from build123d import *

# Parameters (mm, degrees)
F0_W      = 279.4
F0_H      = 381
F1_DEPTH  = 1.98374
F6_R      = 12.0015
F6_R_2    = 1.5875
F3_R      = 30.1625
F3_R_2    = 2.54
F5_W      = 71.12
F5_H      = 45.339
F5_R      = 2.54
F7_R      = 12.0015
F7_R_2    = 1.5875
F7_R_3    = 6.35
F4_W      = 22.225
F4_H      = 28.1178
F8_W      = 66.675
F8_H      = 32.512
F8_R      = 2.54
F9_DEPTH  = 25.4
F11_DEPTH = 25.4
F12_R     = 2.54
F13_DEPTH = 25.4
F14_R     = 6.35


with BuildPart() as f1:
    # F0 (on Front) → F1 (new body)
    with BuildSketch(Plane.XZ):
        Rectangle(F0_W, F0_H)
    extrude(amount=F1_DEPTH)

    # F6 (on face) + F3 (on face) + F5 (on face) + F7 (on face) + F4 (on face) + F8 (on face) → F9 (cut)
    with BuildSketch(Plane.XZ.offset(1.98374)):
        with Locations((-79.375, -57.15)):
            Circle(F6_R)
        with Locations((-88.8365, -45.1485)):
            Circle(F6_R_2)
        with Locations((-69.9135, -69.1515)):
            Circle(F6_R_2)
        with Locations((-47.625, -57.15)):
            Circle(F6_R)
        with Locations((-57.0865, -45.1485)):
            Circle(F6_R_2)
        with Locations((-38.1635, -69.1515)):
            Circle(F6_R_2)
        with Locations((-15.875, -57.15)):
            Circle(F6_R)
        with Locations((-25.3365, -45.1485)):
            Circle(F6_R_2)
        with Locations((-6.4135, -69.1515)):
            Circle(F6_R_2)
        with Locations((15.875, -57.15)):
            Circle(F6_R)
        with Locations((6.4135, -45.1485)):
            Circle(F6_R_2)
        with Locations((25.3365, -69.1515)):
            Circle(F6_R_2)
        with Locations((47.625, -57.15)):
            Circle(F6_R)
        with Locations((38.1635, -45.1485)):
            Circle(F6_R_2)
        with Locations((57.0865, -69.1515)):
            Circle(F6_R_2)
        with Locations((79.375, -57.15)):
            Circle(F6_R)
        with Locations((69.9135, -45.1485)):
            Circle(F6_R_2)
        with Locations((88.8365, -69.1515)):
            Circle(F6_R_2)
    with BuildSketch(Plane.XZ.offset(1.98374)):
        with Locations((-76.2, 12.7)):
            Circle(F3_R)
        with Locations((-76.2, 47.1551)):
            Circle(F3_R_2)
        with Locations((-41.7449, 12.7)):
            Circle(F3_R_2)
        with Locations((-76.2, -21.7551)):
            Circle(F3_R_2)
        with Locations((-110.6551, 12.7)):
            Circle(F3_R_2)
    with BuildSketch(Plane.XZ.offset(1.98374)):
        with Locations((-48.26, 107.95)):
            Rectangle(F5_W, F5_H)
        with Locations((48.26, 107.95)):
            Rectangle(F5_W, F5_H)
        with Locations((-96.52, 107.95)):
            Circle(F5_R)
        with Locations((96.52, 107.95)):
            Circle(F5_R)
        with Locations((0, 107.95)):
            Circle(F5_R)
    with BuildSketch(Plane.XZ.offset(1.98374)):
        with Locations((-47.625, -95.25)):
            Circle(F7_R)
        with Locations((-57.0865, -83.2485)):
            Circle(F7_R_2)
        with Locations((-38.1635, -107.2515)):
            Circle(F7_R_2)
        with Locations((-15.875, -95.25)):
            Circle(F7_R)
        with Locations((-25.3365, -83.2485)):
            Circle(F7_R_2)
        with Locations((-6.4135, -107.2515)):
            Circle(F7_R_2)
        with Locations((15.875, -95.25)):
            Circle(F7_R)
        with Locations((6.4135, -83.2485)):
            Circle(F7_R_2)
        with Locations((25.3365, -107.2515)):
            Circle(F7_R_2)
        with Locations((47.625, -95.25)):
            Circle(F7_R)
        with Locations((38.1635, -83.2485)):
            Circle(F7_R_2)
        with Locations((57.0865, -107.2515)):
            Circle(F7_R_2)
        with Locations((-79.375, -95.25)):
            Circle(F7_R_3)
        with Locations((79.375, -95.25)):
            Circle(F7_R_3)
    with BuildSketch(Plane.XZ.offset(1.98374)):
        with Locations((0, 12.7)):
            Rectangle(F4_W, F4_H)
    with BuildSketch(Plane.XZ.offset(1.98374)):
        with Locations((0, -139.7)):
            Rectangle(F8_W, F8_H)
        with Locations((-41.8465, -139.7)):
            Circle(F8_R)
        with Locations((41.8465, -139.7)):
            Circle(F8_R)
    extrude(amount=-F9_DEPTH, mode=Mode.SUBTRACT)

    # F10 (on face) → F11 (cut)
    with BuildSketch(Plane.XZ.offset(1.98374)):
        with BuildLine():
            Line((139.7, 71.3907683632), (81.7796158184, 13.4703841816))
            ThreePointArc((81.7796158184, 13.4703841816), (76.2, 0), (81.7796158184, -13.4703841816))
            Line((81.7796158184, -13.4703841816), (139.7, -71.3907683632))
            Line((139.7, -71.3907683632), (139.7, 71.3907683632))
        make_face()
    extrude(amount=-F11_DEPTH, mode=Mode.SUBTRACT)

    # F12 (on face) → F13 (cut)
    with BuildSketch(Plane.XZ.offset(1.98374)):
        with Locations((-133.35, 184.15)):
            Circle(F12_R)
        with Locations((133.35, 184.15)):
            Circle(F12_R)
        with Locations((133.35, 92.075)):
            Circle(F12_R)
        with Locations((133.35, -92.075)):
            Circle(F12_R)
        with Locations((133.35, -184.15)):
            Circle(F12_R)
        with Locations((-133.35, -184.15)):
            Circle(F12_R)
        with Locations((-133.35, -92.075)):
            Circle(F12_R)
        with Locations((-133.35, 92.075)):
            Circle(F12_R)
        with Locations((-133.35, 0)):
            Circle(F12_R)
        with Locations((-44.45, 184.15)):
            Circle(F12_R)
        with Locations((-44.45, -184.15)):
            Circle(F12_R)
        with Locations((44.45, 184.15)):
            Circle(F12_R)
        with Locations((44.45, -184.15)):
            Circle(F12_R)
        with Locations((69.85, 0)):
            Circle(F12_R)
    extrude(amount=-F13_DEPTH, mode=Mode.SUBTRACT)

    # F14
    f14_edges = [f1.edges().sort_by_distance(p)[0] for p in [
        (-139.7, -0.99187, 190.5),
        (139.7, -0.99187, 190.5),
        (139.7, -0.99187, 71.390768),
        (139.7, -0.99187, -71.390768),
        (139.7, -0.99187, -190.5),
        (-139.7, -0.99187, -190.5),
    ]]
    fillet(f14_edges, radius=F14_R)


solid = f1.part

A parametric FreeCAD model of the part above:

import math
import FreeCAD as App
import Part
import Sketcher

V = App.Vector
Q = App.Units.Quantity


def edges_at(feature, points):
    """Names of the edges that pass closest to the given points."""
    edges = feature.Shape.Edges
    near = lambda p: min(range(len(edges)), key=lambda i: edges[i].distToShape(Part.Vertex(*p))[0])
    return sorted({f"Edge{near(p) + 1}" for p in points})

doc = App.newDocument("Part")
params = doc.addObject("Spreadsheet::Sheet", "Params")
for row, (alias, value) in enumerate([
    ("sketch1_width", "11 in"),
    ("sketch1_height", "15 in"),
    ("pad1_length", "0.0781 in"),
    ("sketch2_diameter", "0.2 in"),
    ("sketch2_diameter2", "0.5 in"),
    ("sketch2_diameter3", "0.945 in"),
    ("sketch2_diameter4", "0.125 in"),
    ("sketch2_diameter5", "2.375 in"),
    ("pocket1_length", "1 in"),
    ("sketch3_radius", "0.75 in"),
    ("pocket2_length", "1 in"),
    ("sketch4_diameter", "0.2 in"),
    ("pocket3_length", "1 in"),
    ("fillet_radius", "0.25 in"),
], start=1):
    params.set(f"A{row}", alias)
    params.set(f"B{row}", "=" + value)
    params.setAlias(f"B{row}", alias)

body = doc.addObject("PartDesign::Body", "Body")

sketch1 = doc.addObject("Sketcher::SketchObject", "Sketch")
body.addObject(sketch1)
sketch1.AttachmentSupport = (doc.XZ_Plane, [""])
sketch1.MapMode = "FlatFace"
sketch1.addGeometry([
    Part.LineSegment(V(-139.7, 190.5, 0), V(-139.7, -190.5, 0)),
    Part.LineSegment(V(-139.7, -190.5, 0), V(139.7, -190.5, 0)),
    Part.LineSegment(V(139.7, -190.5, 0), V(139.7, 190.5, 0)),
    Part.LineSegment(V(139.7, 190.5, 0), V(-139.7, 190.5, 0)),
], False)
sketch1.addConstraint([
    Sketcher.Constraint("Coincident", 0, 2, 1, 1),
    Sketcher.Constraint("Coincident", 1, 2, 2, 1),
    Sketcher.Constraint("Coincident", 2, 2, 3, 1),
    Sketcher.Constraint("Coincident", 3, 2, 0, 1),
    Sketcher.Constraint("Vertical", 0),
    Sketcher.Constraint("Horizontal", 1),
    Sketcher.Constraint("Vertical", 2),
    Sketcher.Constraint("Horizontal", 3),
    Sketcher.Constraint("Symmetric", 0, 2, 2, 2, -1, 1),
    Sketcher.Constraint("DistanceX", 1, 1, 1, 2, Q("11 in")),
    Sketcher.Constraint("DistanceY", 0, 2, 0, 1, Q("15 in")),
])
sketch1.setExpression("Constraints[9]", "Params.sketch1_width")
sketch1.setExpression("Constraints[10]", "Params.sketch1_height")
pad1 = doc.addObject("PartDesign::Pad", "Pad")
body.addObject(pad1)
pad1.Profile = sketch1
pad1.setExpression("Length", "Params.pad1_length")

sketch2 = doc.addObject("Sketcher::SketchObject", "Sketch001")
body.addObject(sketch2)
sketch2.AttachmentSupport = (doc.XZ_Plane, [""])
sketch2.MapMode = "FlatFace"
sketch2.AttachmentOffset = App.Placement(V(0, 0, 0.0781 * 25.4), App.Rotation())
sketch2.addGeometry([
    Part.Circle(V(-79.375, -57.15, 0), V(0, 0, 1), 12.0015),
    Part.Circle(V(-88.8365, -45.1485, 0), V(0, 0, 1), 1.5875),
    Part.Circle(V(-69.9135, -69.1515, 0), V(0, 0, 1), 1.5875),
    Part.Circle(V(-47.625, -57.15, 0), V(0, 0, 1), 12.0015),
    Part.Circle(V(-57.0865, -45.1485, 0), V(0, 0, 1), 1.5875),
    Part.Circle(V(-38.1635, -69.1515, 0), V(0, 0, 1), 1.5875),
    Part.Circle(V(-15.875, -57.15, 0), V(0, 0, 1), 12.0015),
    Part.Circle(V(-25.3365, -45.1485, 0), V(0, 0, 1), 1.5875),
    Part.Circle(V(-6.4135, -69.1515, 0), V(0, 0, 1), 1.5875),
    Part.Circle(V(15.875, -57.15, 0), V(0, 0, 1), 12.0015),
    Part.Circle(V(6.4135, -45.1485, 0), V(0, 0, 1), 1.5875),
    Part.Circle(V(25.3365, -69.1515, 0), V(0, 0, 1), 1.5875),
    Part.Circle(V(47.625, -57.15, 0), V(0, 0, 1), 12.0015),
    Part.Circle(V(38.1635, -45.1485, 0), V(0, 0, 1), 1.5875),
    Part.Circle(V(57.0865, -69.1515, 0), V(0, 0, 1), 1.5875),
    Part.Circle(V(79.375, -57.15, 0), V(0, 0, 1), 12.0015),
    Part.Circle(V(69.9135, -45.1485, 0), V(0, 0, 1), 1.5875),
    Part.Circle(V(88.8365, -69.1515, 0), V(0, 0, 1), 1.5875),
    Part.Circle(V(-76.2, 12.7, 0), V(0, 0, 1), 30.1625),
    Part.Circle(V(-76.2, 47.1551, 0), V(0, 0, 1), 2.54),
    Part.Circle(V(-41.7449, 12.7, 0), V(0, 0, 1), 2.54),
    Part.Circle(V(-76.2, -21.7551, 0), V(0, 0, 1), 2.54),
    Part.Circle(V(-110.6551, 12.7, 0), V(0, 0, 1), 2.54),
    Part.LineSegment(V(-83.82, 130.6195, 0), V(-83.82, 85.2805, 0)),
    Part.LineSegment(V(-83.82, 85.2805, 0), V(-12.7, 85.2805, 0)),
    Part.LineSegment(V(-12.7, 85.2805, 0), V(-12.7, 130.6195, 0)),
    Part.LineSegment(V(-12.7, 130.6195, 0), V(-83.82, 130.6195, 0)),
    Part.LineSegment(V(12.7, 130.6195, 0), V(12.7, 85.2805, 0)),
    Part.LineSegment(V(12.7, 85.2805, 0), V(83.82, 85.2805, 0)),
    Part.LineSegment(V(83.82, 85.2805, 0), V(83.82, 130.6195, 0)),
    Part.LineSegment(V(83.82, 130.6195, 0), V(12.7, 130.6195, 0)),
    Part.Circle(V(-96.52, 107.95, 0), V(0, 0, 1), 2.54),
    Part.Circle(V(96.52, 107.95, 0), V(0, 0, 1), 2.54),
    Part.Circle(V(0, 107.95, 0), V(0, 0, 1), 2.54),
    Part.Circle(V(-47.625, -95.25, 0), V(0, 0, 1), 12.0015),
    Part.Circle(V(-57.0865, -83.2485, 0), V(0, 0, 1), 1.5875),
    Part.Circle(V(-38.1635, -107.2515, 0), V(0, 0, 1), 1.5875),
    Part.Circle(V(-15.875, -95.25, 0), V(0, 0, 1), 12.0015),
    Part.Circle(V(-25.3365, -83.2485, 0), V(0, 0, 1), 1.5875),
    Part.Circle(V(-6.4135, -107.2515, 0), V(0, 0, 1), 1.5875),
    Part.Circle(V(15.875, -95.25, 0), V(0, 0, 1), 12.0015),
    Part.Circle(V(6.4135, -83.2485, 0), V(0, 0, 1), 1.5875),
    Part.Circle(V(25.3365, -107.2515, 0), V(0, 0, 1), 1.5875),
    Part.Circle(V(47.625, -95.25, 0), V(0, 0, 1), 12.0015),
    Part.Circle(V(38.1635, -83.2485, 0), V(0, 0, 1), 1.5875),
    Part.Circle(V(57.0865, -107.2515, 0), V(0, 0, 1), 1.5875),
    Part.Circle(V(-79.375, -95.25, 0), V(0, 0, 1), 6.35),
    Part.Circle(V(79.375, -95.25, 0), V(0, 0, 1), 6.35),
    Part.LineSegment(V(-11.1125, 26.7589, 0), V(-11.1125, -1.3589, 0)),
    Part.LineSegment(V(-11.1125, -1.3589, 0), V(11.1125, -1.3589, 0)),
    Part.LineSegment(V(11.1125, -1.3589, 0), V(11.1125, 26.7589, 0)),
    Part.LineSegment(V(11.1125, 26.7589, 0), V(-11.1125, 26.7589, 0)),
    Part.LineSegment(V(-33.3375, -123.444, 0), V(-33.3375, -155.956, 0)),
    Part.LineSegment(V(-33.3375, -155.956, 0), V(33.3375, -155.956, 0)),
    Part.LineSegment(V(33.3375, -155.956, 0), V(33.3375, -123.444, 0)),
    Part.LineSegment(V(33.3375, -123.444, 0), V(-33.3375, -123.444, 0)),
    Part.Circle(V(-41.8465, -139.7, 0), V(0, 0, 1), 2.54),
    Part.Circle(V(41.8465, -139.7, 0), V(0, 0, 1), 2.54),
], False)
sketch2.addConstraint([
    Sketcher.Constraint("Coincident", 23, 2, 24, 1),
    Sketcher.Constraint("Coincident", 24, 2, 25, 1),
    Sketcher.Constraint("Coincident", 25, 2, 26, 1),
    Sketcher.Constraint("Coincident", 26, 2, 23, 1),
    Sketcher.Constraint("Coincident", 27, 2, 28, 1),
    Sketcher.Constraint("Coincident", 28, 2, 29, 1),
    Sketcher.Constraint("Coincident", 29, 2, 30, 1),
    Sketcher.Constraint("Coincident", 30, 2, 27, 1),
    Sketcher.Constraint("Coincident", 48, 2, 49, 1),
    Sketcher.Constraint("Coincident", 49, 2, 50, 1),
    Sketcher.Constraint("Coincident", 50, 2, 51, 1),
    Sketcher.Constraint("Coincident", 51, 2, 48, 1),
    Sketcher.Constraint("Coincident", 52, 2, 53, 1),
    Sketcher.Constraint("Coincident", 53, 2, 54, 1),
    Sketcher.Constraint("Coincident", 54, 2, 55, 1),
    Sketcher.Constraint("Coincident", 55, 2, 52, 1),
    Sketcher.Constraint("Vertical", 23),
    Sketcher.Constraint("Horizontal", 24),
    Sketcher.Constraint("Vertical", 25),
    Sketcher.Constraint("Horizontal", 26),
    Sketcher.Constraint("Vertical", 27),
    Sketcher.Constraint("Horizontal", 28),
    Sketcher.Constraint("Vertical", 29),
    Sketcher.Constraint("Horizontal", 30),
    Sketcher.Constraint("Vertical", 48),
    Sketcher.Constraint("Horizontal", 49),
    Sketcher.Constraint("Vertical", 50),
    Sketcher.Constraint("Horizontal", 51),
    Sketcher.Constraint("Vertical", 52),
    Sketcher.Constraint("Horizontal", 53),
    Sketcher.Constraint("Vertical", 54),
    Sketcher.Constraint("Horizontal", 55),
    Sketcher.Constraint("Equal", 1, 2),
    Sketcher.Constraint("Equal", 0, 3),
    Sketcher.Constraint("Equal", 2, 4),
    Sketcher.Constraint("Equal", 4, 5),
    Sketcher.Constraint("Equal", 3, 6),
    Sketcher.Constraint("Equal", 5, 7),
    Sketcher.Constraint("Equal", 7, 8),
    Sketcher.Constraint("Equal", 6, 9),
    Sketcher.Constraint("Equal", 8, 10),
    Sketcher.Constraint("Equal", 10, 11),
    Sketcher.Constraint("Equal", 9, 12),
    Sketcher.Constraint("Equal", 11, 13),
    Sketcher.Constraint("Equal", 13, 14),
    Sketcher.Constraint("Equal", 12, 15),
    Sketcher.Constraint("Equal", 14, 16),
    Sketcher.Constraint("Equal", 16, 17),
    Sketcher.Constraint("Equal", 19, 20),
    Sketcher.Constraint("Equal", 20, 21),
    Sketcher.Constraint("Equal", 21, 22),
    Sketcher.Constraint("Equal", 22, 31),
    Sketcher.Constraint("Equal", 31, 32),
    Sketcher.Constraint("Equal", 32, 33),
    Sketcher.Constraint("Equal", 15, 34),
    Sketcher.Constraint("Equal", 17, 35),
    Sketcher.Constraint("Equal", 35, 36),
    Sketcher.Constraint("Equal", 34, 37),
    Sketcher.Constraint("Equal", 36, 38),
    Sketcher.Constraint("Equal", 38, 39),
    Sketcher.Constraint("Equal", 37, 40),
    Sketcher.Constraint("Equal", 39, 41),
    Sketcher.Constraint("Equal", 41, 42),
    Sketcher.Constraint("Equal", 40, 43),
    Sketcher.Constraint("Equal", 42, 44),
    Sketcher.Constraint("Equal", 44, 45),
    Sketcher.Constraint("Equal", 46, 47),
    Sketcher.Constraint("Equal", 33, 56),
    Sketcher.Constraint("Equal", 56, 57),
    Sketcher.Constraint("Symmetric", 6, 3, 9, 3, -2),
    Sketcher.Constraint("Symmetric", 3, 3, 12, 3, -2),
    Sketcher.Constraint("Symmetric", 0, 3, 15, 3, -2),
    Sketcher.Constraint("Symmetric", 31, 3, 32, 3, -2),
    Sketcher.Constraint("Symmetric", 37, 3, 40, 3, -2),
    Sketcher.Constraint("Symmetric", 34, 3, 43, 3, -2),
    Sketcher.Constraint("Symmetric", 46, 3, 47, 3, -2),
    Sketcher.Constraint("Symmetric", 56, 3, 57, 3, -2),
    Sketcher.Constraint("Symmetric", 24, 2, 27, 2, -2),
    Sketcher.Constraint("Symmetric", 26, 2, 29, 2, -2),
    Sketcher.Constraint("PointOnObject", 33, 3, -2),
    Sketcher.Constraint("Horizontal", 0, 3, 3, 3),
    Sketcher.Constraint("Horizontal", 1, 3, 4, 3),
    Sketcher.Constraint("Horizontal", 2, 3, 5, 3),
    Sketcher.Constraint("Horizontal", 3, 3, 6, 3),
    Sketcher.Constraint("Horizontal", 4, 3, 7, 3),
    Sketcher.Constraint("Horizontal", 5, 3, 8, 3),
    Sketcher.Constraint("Horizontal", 7, 3, 10, 3),
    Sketcher.Constraint("Horizontal", 8, 3, 11, 3),
    Sketcher.Constraint("Horizontal", 10, 3, 13, 3),
    Sketcher.Constraint("Horizontal", 11, 3, 14, 3),
    Sketcher.Constraint("Horizontal", 13, 3, 16, 3),
    Sketcher.Constraint("Horizontal", 14, 3, 17, 3),
    Sketcher.Constraint("Horizontal", 18, 3, 20, 3),
    Sketcher.Constraint("Horizontal", 20, 3, 22, 3),
    Sketcher.Constraint("Horizontal", 32, 3, 33, 3),
    Sketcher.Constraint("Horizontal", 34, 3, 37, 3),
    Sketcher.Constraint("Horizontal", 35, 3, 38, 3),
    Sketcher.Constraint("Horizontal", 36, 3, 39, 3),
    Sketcher.Constraint("Horizontal", 38, 3, 41, 3),
    Sketcher.Constraint("Horizontal", 39, 3, 42, 3),
    Sketcher.Constraint("Horizontal", 41, 3, 44, 3),
    Sketcher.Constraint("Horizontal", 42, 3, 45, 3),
    Sketcher.Constraint("Horizontal", 43, 3, 46, 3),
    Sketcher.Constraint("Vertical", 18, 3, 19, 3),
    Sketcher.Constraint("Vertical", 19, 3, 21, 3),
    Sketcher.Constraint("Vertical", 3, 3, 34, 3),
    Sketcher.Constraint("Vertical", 4, 3, 35, 3),
    Sketcher.Constraint("Vertical", 5, 3, 36, 3),
    Sketcher.Constraint("Vertical", 6, 3, 37, 3),
    Sketcher.Constraint("Vertical", 7, 3, 38, 3),
    Sketcher.Constraint("Vertical", 8, 3, 39, 3),
    Sketcher.Constraint("Vertical", 10, 3, 41, 3),
    Sketcher.Constraint("Vertical", 11, 3, 42, 3),
    Sketcher.Constraint("Vertical", 13, 3, 44, 3),
    Sketcher.Constraint("Vertical", 14, 3, 45, 3),
    Sketcher.Constraint("Vertical", 0, 3, 46, 3),
    Sketcher.Constraint("Diameter", 19, Q("0.2 in")),
    Sketcher.Constraint("Diameter", 46, Q("0.5 in")),
    Sketcher.Constraint("Diameter", 0, Q("0.945 in")),
    Sketcher.Constraint("Diameter", 1, Q("0.125 in")),
    Sketcher.Constraint("Diameter", 18, Q("2.375 in")),
    Sketcher.Constraint("DistanceX", 24, 1, 24, 2, Q("2.8 in")),
    Sketcher.Constraint("DistanceX", 18, 3, -1, 1, Q("3 in")),
    Sketcher.Constraint("DistanceX", 24, 2, 27, 2, Q("1 in")),
    Sketcher.Constraint("DistanceY", 52, 2, 52, 1, Q("1.28 in")),
    Sketcher.Constraint("DistanceY", -1, 1, 18, 3, Q("0.5 in")),
    Sketcher.Constraint("DistanceX", 31, 3, -1, 1, Q("3.8 in")),
    Sketcher.Constraint("DistanceY", 56, 3, -1, 1, Q("5.5 in")),
    Sketcher.Constraint("DistanceX", 0, 3, 6, 3, Q("2.5 in")),
    Sketcher.Constraint("DistanceX", 3, 3, 9, 3, Q("2.5 in")),
    Sketcher.Constraint("DistanceY", 15, 3, 32, 3, Q("6.5 in")),
    Sketcher.Constraint("DistanceY", 34, 3, 3, 3, Q("1.5 in")),
    Sketcher.Constraint("DistanceY", 36, 3, 5, 3, Q("1.5 in")),
    Sketcher.Constraint("DistanceX", 57, 3, 45, 3, Q("0.6 in")),
    Sketcher.Constraint("DistanceX", 49, 1, 49, 2, Q("0.875 in")),
    Sketcher.Constraint("DistanceX", 53, 1, 53, 2, Q("2.625 in")),
    Sketcher.Constraint("DistanceY", 23, 2, 23, 1, Q("1.785 in")),
    Sketcher.Constraint("DistanceY", 48, 2, 48, 1, Q("1.107 in")),
    Sketcher.Constraint("DistanceY", 0, 3, -1, 1, Q("2.25 in")),
    Sketcher.Constraint("DistanceY", 52, 2, -1, 1, Q("6.14 in")),
    Sketcher.Constraint("DistanceX", 0, 3, 3, 3, Q("1.25 in")),
    Sketcher.Constraint("DistanceX", 1, 3, 4, 3, Q("1.25 in")),
    Sketcher.Constraint("DistanceX", 2, 3, 5, 3, Q("1.25 in")),
    Sketcher.Constraint("DistanceX", 4, 3, 7, 3, Q("1.25 in")),
    Sketcher.Constraint("DistanceX", 5, 3, 8, 3, Q("1.25 in")),
    Sketcher.Constraint("DistanceX", 7, 3, 10, 3, Q("1.25 in")),
    Sketcher.Constraint("DistanceX", 8, 3, 11, 3, Q("1.25 in")),
    Sketcher.Constraint("DistanceX", 10, 3, 13, 3, Q("1.25 in")),
    Sketcher.Constraint("DistanceX", 11, 3, 14, 3, Q("1.25 in")),
    Sketcher.Constraint("DistanceX", 13, 3, 16, 3, Q("1.25 in")),
    Sketcher.Constraint("DistanceX", 14, 3, 17, 3, Q("1.25 in")),
    Sketcher.Constraint("DistanceX", 7, 3, 48, 2, Q("0.56 in")),
    Sketcher.Constraint("DistanceX", 36, 3, 52, 2, Q("0.19 in")),
    Sketcher.Constraint("DistanceX", 48, 2, -1, 1, Q("0.4375 in")),
    Sketcher.Constraint("DistanceX", 52, 2, -1, 1, Q("1.3125 in")),
    Sketcher.Constraint("DistanceY", 2, 3, 1, 3, Q("0.945 in")),
    Sketcher.Constraint("DistanceY", 1, 3, 19, 3, Q("3.634 in")),
    Sketcher.Constraint("DistanceX", 4, 3, 20, 3, Q("0.604 in")),
    Sketcher.Constraint("DistanceY", 1, 3, 21, 3, Q("0.921 in")),
    Sketcher.Constraint("DistanceX", 22, 3, 1, 3, Q("0.859 in")),
    Sketcher.Constraint("DistanceY", 35, 3, 2, 3, Q("0.555 in")),
    Sketcher.Constraint("DistanceY", 19, 3, 23, 2, Q("1.501 in")),
    Sketcher.Constraint("DistanceY", 7, 3, 48, 2, Q("1.724 in")),
    Sketcher.Constraint("DistanceY", 1, 3, -1, 1, Q("1.7775 in")),
])
sketch2.setExpression("Constraints[116]", "Params.sketch2_diameter")
sketch2.setExpression("Constraints[117]", "Params.sketch2_diameter2")
sketch2.setExpression("Constraints[118]", "Params.sketch2_diameter3")
sketch2.setExpression("Constraints[119]", "Params.sketch2_diameter4")
sketch2.setExpression("Constraints[120]", "Params.sketch2_diameter5")
pocket1 = doc.addObject("PartDesign::Pocket", "Pocket")
body.addObject(pocket1)
pocket1.Profile = sketch2
pocket1.setExpression("Length", "Params.pocket1_length")

sketch3 = doc.addObject("Sketcher::SketchObject", "Sketch002")
body.addObject(sketch3)
sketch3.AttachmentSupport = (doc.XZ_Plane, [""])
sketch3.MapMode = "FlatFace"
sketch3.AttachmentOffset = App.Placement(V(0, 0, 0.0781 * 25.4), App.Rotation())
sketch3.addGeometry([
    Part.LineSegment(V(139.7, 71.390768, 0), V(81.779616, 13.470384, 0)),
    Part.ArcOfCircle(Part.Circle(V(95.25, 0, 0), V(0, 0, 1), 19.05), math.radians(135), math.radians(225)),
    Part.LineSegment(V(81.779616, -13.470384, 0), V(139.7, -71.390768, 0)),
    Part.LineSegment(V(139.7, -71.390768, 0), V(139.7, 71.390768, 0)),
], False)
sketch3.addConstraint([
    Sketcher.Constraint("Tangent", 0, 2, 1, 1),
    Sketcher.Constraint("Tangent", 1, 2, 2, 1),
    Sketcher.Constraint("Coincident", 2, 2, 3, 1),
    Sketcher.Constraint("Coincident", 3, 2, 0, 1),
    Sketcher.Constraint("Vertical", 3),
    Sketcher.Constraint("Symmetric", 0, 2, 1, 2, -1),
    Sketcher.Constraint("Perpendicular", 0, 2),
    Sketcher.Constraint("Radius", 1, Q("0.75 in")),
    Sketcher.Constraint("DistanceX", -1, 1, 2, 2, Q("5.5 in")),
    Sketcher.Constraint("DistanceX", -1, 1, 1, 3, Q("3.75 in")),
])
sketch3.setExpression("Constraints[7]", "Params.sketch3_radius")
pocket2 = doc.addObject("PartDesign::Pocket", "Pocket001")
body.addObject(pocket2)
pocket2.Profile = sketch3
pocket2.setExpression("Length", "Params.pocket2_length")

sketch4 = doc.addObject("Sketcher::SketchObject", "Sketch003")
body.addObject(sketch4)
sketch4.AttachmentSupport = (doc.XZ_Plane, [""])
sketch4.MapMode = "FlatFace"
sketch4.AttachmentOffset = App.Placement(V(0, 0, 0.0781 * 25.4), App.Rotation())
sketch4.addGeometry([
    Part.Circle(V(-133.35, 184.15, 0), V(0, 0, 1), 2.54),
    Part.Circle(V(133.35, 184.15, 0), V(0, 0, 1), 2.54),
    Part.Circle(V(133.35, 92.075, 0), V(0, 0, 1), 2.54),
    Part.Circle(V(133.35, -92.075, 0), V(0, 0, 1), 2.54),
    Part.Circle(V(133.35, -184.15, 0), V(0, 0, 1), 2.54),
    Part.Circle(V(-133.35, -184.15, 0), V(0, 0, 1), 2.54),
    Part.Circle(V(-133.35, -92.075, 0), V(0, 0, 1), 2.54),
    Part.Circle(V(-133.35, 92.075, 0), V(0, 0, 1), 2.54),
    Part.Circle(V(-133.35, 0, 0), V(0, 0, 1), 2.54),
    Part.Circle(V(-44.45, 184.15, 0), V(0, 0, 1), 2.54),
    Part.Circle(V(-44.45, -184.15, 0), V(0, 0, 1), 2.54),
    Part.Circle(V(44.45, 184.15, 0), V(0, 0, 1), 2.54),
    Part.Circle(V(44.45, -184.15, 0), V(0, 0, 1), 2.54),
    Part.Circle(V(69.85, 0, 0), V(0, 0, 1), 2.54),
], False)
sketch4.addConstraint([
    Sketcher.Constraint("Equal", 0, 1),
    Sketcher.Constraint("Equal", 1, 2),
    Sketcher.Constraint("Equal", 2, 3),
    Sketcher.Constraint("Equal", 3, 4),
    Sketcher.Constraint("Equal", 4, 5),
    Sketcher.Constraint("Equal", 5, 6),
    Sketcher.Constraint("Equal", 6, 7),
    Sketcher.Constraint("Equal", 7, 8),
    Sketcher.Constraint("Equal", 8, 9),
    Sketcher.Constraint("Equal", 9, 10),
    Sketcher.Constraint("Equal", 10, 11),
    Sketcher.Constraint("Equal", 11, 12),
    Sketcher.Constraint("Equal", 12, 13),
    Sketcher.Constraint("Symmetric", 0, 3, 4, 3, -1, 1),
    Sketcher.Constraint("Symmetric", 1, 3, 5, 3, -1, 1),
    Sketcher.Constraint("Symmetric", 2, 3, 6, 3, -1, 1),
    Sketcher.Constraint("Symmetric", 3, 3, 7, 3, -1, 1),
    Sketcher.Constraint("Symmetric", 10, 3, 11, 3, -1, 1),
    Sketcher.Constraint("Symmetric", 9, 3, 12, 3, -1, 1),
    Sketcher.Constraint("Symmetric", 0, 3, 1, 3, -2),
    Sketcher.Constraint("Symmetric", 3, 3, 6, 3, -2),
    Sketcher.Constraint("Symmetric", 9, 3, 11, 3, -2),
    Sketcher.Constraint("PointOnObject", 8, 3, -1),
    Sketcher.Constraint("PointOnObject", 13, 3, -1),
    Sketcher.Constraint("Horizontal", 1, 3, 9, 3),
    Sketcher.Constraint("Vertical", 1, 3, 2, 3),
    Sketcher.Constraint("Vertical", 7, 3, 8, 3),
    Sketcher.Constraint("Diameter", 0, Q("0.2 in")),
    Sketcher.Constraint("DistanceX", 9, 3, 1, 3, Q("7 in")),
    Sketcher.Constraint("DistanceX", 11, 3, 13, 3, Q("1 in")),
    Sketcher.Constraint("DistanceX", 0, 3, 1, 3, Q("10.5 in")),
    Sketcher.Constraint("DistanceY", 4, 3, 1, 3, Q("14.5 in")),
    Sketcher.Constraint("DistanceY", 3, 3, 2, 3, Q("7.25 in")),
])
sketch4.setExpression("Constraints[27]", "Params.sketch4_diameter")
pocket3 = doc.addObject("PartDesign::Pocket", "Pocket002")
body.addObject(pocket3)
pocket3.Profile = sketch4
pocket3.setExpression("Length", "Params.pocket3_length")
doc.recompute()

fillet = doc.addObject("PartDesign::Fillet", "Fillet")
body.addObject(fillet)
fillet.Base = (pocket3, edges_at(pocket3, [
    (-139.7, -0.992, 190.5),
    (139.7, -0.992, 190.5),
    (139.7, -0.992, 71.391),
    (139.7, -0.992, -71.391),
    (139.7, -0.992, -190.5),
    (-139.7, -0.992, -190.5),
]))
fillet.setExpression("Radius", "Params.fillet_radius")

doc.recompute()
